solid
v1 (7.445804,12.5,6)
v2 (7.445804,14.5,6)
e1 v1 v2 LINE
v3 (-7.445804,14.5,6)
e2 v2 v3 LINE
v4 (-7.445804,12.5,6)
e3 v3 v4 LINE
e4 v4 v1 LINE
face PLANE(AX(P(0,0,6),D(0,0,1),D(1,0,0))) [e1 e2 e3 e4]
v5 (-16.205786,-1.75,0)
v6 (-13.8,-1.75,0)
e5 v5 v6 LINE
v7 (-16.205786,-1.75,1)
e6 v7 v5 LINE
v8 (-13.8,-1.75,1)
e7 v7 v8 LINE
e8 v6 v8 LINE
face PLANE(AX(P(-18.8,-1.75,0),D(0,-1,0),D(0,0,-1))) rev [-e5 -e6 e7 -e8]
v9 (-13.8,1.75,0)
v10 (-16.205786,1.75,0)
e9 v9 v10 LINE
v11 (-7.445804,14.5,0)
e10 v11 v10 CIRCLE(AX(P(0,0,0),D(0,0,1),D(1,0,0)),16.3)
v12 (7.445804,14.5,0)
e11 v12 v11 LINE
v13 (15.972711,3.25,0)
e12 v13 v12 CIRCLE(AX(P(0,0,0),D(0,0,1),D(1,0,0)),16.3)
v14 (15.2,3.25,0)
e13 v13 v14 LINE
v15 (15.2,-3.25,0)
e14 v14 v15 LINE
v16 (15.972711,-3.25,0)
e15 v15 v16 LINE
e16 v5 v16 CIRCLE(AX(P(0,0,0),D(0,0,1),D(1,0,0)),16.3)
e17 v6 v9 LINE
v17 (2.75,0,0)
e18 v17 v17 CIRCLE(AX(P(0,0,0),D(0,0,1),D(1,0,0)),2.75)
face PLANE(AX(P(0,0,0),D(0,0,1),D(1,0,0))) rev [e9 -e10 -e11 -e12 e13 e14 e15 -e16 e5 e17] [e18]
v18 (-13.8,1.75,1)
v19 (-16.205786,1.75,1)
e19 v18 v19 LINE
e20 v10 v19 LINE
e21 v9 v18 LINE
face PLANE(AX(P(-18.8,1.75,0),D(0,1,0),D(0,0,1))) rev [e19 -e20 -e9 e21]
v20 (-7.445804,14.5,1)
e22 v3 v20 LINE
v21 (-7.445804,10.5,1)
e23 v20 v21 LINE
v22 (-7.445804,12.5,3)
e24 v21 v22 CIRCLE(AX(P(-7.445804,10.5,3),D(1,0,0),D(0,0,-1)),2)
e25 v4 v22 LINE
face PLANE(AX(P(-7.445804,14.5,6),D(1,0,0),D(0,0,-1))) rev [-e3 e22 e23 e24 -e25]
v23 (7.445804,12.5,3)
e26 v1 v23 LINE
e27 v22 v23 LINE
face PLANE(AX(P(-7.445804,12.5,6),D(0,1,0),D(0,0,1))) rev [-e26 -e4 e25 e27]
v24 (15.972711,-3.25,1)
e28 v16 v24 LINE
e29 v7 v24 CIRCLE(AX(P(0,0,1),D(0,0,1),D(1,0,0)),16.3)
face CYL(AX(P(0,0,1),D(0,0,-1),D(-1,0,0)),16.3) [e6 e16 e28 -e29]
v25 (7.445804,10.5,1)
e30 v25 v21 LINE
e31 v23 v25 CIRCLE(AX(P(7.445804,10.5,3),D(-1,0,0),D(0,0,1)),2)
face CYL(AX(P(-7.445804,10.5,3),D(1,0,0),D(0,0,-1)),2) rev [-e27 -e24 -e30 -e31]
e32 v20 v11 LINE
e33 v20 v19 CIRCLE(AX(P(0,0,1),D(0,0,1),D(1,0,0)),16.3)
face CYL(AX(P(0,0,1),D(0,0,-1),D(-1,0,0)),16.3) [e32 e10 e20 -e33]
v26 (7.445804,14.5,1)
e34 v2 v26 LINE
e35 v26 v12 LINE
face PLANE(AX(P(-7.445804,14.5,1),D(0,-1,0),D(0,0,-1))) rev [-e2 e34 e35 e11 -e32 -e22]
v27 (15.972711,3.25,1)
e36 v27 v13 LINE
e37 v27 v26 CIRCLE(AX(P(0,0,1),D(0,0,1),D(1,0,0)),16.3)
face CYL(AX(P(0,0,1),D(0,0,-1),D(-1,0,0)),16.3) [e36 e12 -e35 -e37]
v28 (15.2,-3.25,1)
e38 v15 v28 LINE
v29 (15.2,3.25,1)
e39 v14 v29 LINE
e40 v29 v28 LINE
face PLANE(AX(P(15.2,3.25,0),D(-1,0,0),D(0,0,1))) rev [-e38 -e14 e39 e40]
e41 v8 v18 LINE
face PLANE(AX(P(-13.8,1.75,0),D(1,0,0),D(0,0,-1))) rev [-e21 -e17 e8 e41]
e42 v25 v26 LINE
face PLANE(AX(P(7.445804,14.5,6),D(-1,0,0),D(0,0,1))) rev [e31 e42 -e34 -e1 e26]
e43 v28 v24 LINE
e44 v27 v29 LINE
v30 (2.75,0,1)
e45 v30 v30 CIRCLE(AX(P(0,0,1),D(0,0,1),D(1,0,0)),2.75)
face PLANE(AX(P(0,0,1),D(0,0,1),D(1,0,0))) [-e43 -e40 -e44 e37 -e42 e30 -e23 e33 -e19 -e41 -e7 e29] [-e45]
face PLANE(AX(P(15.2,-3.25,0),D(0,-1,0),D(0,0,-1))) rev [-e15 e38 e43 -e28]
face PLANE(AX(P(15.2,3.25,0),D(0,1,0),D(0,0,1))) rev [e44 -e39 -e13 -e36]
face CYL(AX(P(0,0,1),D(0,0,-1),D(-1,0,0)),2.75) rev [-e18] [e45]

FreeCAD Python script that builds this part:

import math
import FreeCAD as App
import Part
import Sketcher

V = App.Vector
Q = App.Units.Quantity


def edges_at(feature, points):
    """Names of the edges that pass closest to the given points."""
    edges = feature.Shape.Edges
    near = lambda p: min(range(len(edges)), key=lambda i: edges[i].distToShape(Part.Vertex(*p))[0])
    return sorted({f"Edge{near(p) + 1}" for p in points})


def add_polygon(sketch, points):
    """Adds a closed chain of lines whose ends are joined by coincident constraints."""
    first, n = sketch.GeometryCount, len(points)
    for a, b in zip(points, points[1:] + points[:1]):
        sketch.addGeometry(Part.LineSegment(App.Vector(*a, 0), App.Vector(*b, 0)), False)
    for i in range(n):
        sketch.addConstraint(Sketcher.Constraint("Coincident", first + i, 2, first + (i + 1) % n, 1))

doc = App.newDocument("Part")
body = doc.addObject("PartDesign::Body", "Body")

# Sketch on XY plane
sketch1 = doc.addObject("Sketcher::SketchObject", "Sketch")
body.addObject(sketch1)
sketch1.AttachmentSupport = (doc.XY_Plane, [""])
sketch1.MapMode = "FlatFace"
sketch1.addGeometry([
    Part.LineSegment(V(7.4, 14.5, 0), V(-7.4, 14.5, 0)),
    Part.ArcOfCircle(Part.Circle(V(0, 0, 0), V(0, 0, 1), 16.3), math.radians(117), math.radians(423)),
    Part.Circle(V(0, 0, 0), V(0, 0, 1), 2.8),
], False)
sketch1.addConstraint([
    Sketcher.Constraint("Coincident", 0, 1, 1, 2),
    Sketcher.Constraint("Coincident", 1, 1, 0, 2),
    Sketcher.Constraint("Horizontal", 0),
    Sketcher.Constraint("Coincident", 1, 3, -1, 1),
    Sketcher.Constraint("Coincident", 2, 3, -1, 1),
    Sketcher.Constraint("Diameter", 2, Q("5.5 mm")),
    Sketcher.Constraint("Radius", 1, Q("16.3 mm")),
    Sketcher.Constraint("DistanceY", -1, 1, 0, 1, Q("14.5 mm")),
])
pad1 = doc.addObject("PartDesign::Pad", "Pad")
body.addObject(pad1)
pad1.Profile = sketch1
pad1.Length = 1

# Sketch on XY plane
sketch2 = doc.addObject("Sketcher::SketchObject", "Sketch001")
body.addObject(sketch2)
sketch2.AttachmentSupport = (doc.XY_Plane, [""])
sketch2.MapMode = "FlatFace"
sketch2.AttachmentOffset = App.Placement(V(0, 0, 1), App.Rotation())
add_polygon(sketch2, [(-18.8, 1.8), (-18.8, -1.8), (-13.8, -1.8), (-13.8, 1.8)])  # lines 0-3
add_polygon(sketch2, [(15.2, 3.2), (15.2, -3.2), (17.2, -3.2), (17.2, 3.2)])  # lines 4-7
sketch2.addConstraint([
    Sketcher.Constraint("Vertical", 0),
    Sketcher.Constraint("Horizontal", 1),
    Sketcher.Constraint("Vertical", 2),
    Sketcher.Constraint("Horizontal", 3),
    Sketcher.Constraint("Vertical", 4),
    Sketcher.Constraint("Horizontal", 5),
    Sketcher.Constraint("Vertical", 6),
    Sketcher.Constraint("Horizontal", 7),
    Sketcher.Constraint("DistanceX", 1, 1, 1, 2, Q("5 mm")),
    Sketcher.Constraint("DistanceX", 5, 1, 5, 2, Q("2 mm")),
    Sketcher.Constraint("DistanceY", 0, 2, 0, 1, Q("3.5 mm")),
    Sketcher.Constraint("DistanceY", 4, 2, 4, 1, Q("6.5 mm")),
    Sketcher.Constraint("DistanceX", 1, 2, 4, 2, Q("29 mm")),
    Sketcher.Constraint("DistanceY", 4, 2, 2, 2, Q("5 mm")),
    Sketcher.Constraint("DistanceX", 0, 2, -1, 1, Q("18.8 mm")),
    Sketcher.Constraint("DistanceY", 0, 2, -1, 1, Q("1.75 mm")),
])
pocket1 = doc.addObject("PartDesign::Pocket", "Pocket")
body.addObject(pocket1)
pocket1.Profile = sketch2
pocket1.Type = "ThroughAll"

# Sketch on XY plane
sketch3 = doc.addObject("Sketcher::SketchObject", "Sketch002")
body.addObject(sketch3)
sketch3.AttachmentSupport = (doc.XY_Plane, [""])
sketch3.MapMode = "FlatFace"
sketch3.AttachmentOffset = App.Placement(V(0, 0, 1), App.Rotation())
add_polygon(sketch3, [(-7.4, 14.5), (-7.4, 12.5), (7.4, 12.5), (7.4, 14.5)])  # lines 0-3
sketch3.addConstraint([
    Sketcher.Constraint("Vertical", 0),
    Sketcher.Constraint("Horizontal", 1),
    Sketcher.Constraint("Vertical", 2),
    Sketcher.Constraint("Horizontal", 3),
    Sketcher.Constraint("DistanceY", 0, 2, 0, 1, Q("2 mm")),
    Sketcher.Constraint("DistanceY", -1, 1, 0, 2, Q("12.5 mm")),
    Sketcher.Constraint("DistanceX", 1, 1, 1, 2, Q("14.891608 mm")),
    Sketcher.Constraint("DistanceX", 0, 2, -1, 1, Q("7.445804 mm")),
])
pad2 = doc.addObject("PartDesign::Pad", "Pad001")
body.addObject(pad2)
pad2.Profile = sketch3
pad2.Length = 5
doc.recompute()

fillet = doc.addObject("PartDesign::Fillet", "Fillet")
body.addObject(fillet)
fillet.Base = (pad2, edges_at(pad2, [(0, 12.5, 1)]))
fillet.Radius = 2

doc.recompute()
